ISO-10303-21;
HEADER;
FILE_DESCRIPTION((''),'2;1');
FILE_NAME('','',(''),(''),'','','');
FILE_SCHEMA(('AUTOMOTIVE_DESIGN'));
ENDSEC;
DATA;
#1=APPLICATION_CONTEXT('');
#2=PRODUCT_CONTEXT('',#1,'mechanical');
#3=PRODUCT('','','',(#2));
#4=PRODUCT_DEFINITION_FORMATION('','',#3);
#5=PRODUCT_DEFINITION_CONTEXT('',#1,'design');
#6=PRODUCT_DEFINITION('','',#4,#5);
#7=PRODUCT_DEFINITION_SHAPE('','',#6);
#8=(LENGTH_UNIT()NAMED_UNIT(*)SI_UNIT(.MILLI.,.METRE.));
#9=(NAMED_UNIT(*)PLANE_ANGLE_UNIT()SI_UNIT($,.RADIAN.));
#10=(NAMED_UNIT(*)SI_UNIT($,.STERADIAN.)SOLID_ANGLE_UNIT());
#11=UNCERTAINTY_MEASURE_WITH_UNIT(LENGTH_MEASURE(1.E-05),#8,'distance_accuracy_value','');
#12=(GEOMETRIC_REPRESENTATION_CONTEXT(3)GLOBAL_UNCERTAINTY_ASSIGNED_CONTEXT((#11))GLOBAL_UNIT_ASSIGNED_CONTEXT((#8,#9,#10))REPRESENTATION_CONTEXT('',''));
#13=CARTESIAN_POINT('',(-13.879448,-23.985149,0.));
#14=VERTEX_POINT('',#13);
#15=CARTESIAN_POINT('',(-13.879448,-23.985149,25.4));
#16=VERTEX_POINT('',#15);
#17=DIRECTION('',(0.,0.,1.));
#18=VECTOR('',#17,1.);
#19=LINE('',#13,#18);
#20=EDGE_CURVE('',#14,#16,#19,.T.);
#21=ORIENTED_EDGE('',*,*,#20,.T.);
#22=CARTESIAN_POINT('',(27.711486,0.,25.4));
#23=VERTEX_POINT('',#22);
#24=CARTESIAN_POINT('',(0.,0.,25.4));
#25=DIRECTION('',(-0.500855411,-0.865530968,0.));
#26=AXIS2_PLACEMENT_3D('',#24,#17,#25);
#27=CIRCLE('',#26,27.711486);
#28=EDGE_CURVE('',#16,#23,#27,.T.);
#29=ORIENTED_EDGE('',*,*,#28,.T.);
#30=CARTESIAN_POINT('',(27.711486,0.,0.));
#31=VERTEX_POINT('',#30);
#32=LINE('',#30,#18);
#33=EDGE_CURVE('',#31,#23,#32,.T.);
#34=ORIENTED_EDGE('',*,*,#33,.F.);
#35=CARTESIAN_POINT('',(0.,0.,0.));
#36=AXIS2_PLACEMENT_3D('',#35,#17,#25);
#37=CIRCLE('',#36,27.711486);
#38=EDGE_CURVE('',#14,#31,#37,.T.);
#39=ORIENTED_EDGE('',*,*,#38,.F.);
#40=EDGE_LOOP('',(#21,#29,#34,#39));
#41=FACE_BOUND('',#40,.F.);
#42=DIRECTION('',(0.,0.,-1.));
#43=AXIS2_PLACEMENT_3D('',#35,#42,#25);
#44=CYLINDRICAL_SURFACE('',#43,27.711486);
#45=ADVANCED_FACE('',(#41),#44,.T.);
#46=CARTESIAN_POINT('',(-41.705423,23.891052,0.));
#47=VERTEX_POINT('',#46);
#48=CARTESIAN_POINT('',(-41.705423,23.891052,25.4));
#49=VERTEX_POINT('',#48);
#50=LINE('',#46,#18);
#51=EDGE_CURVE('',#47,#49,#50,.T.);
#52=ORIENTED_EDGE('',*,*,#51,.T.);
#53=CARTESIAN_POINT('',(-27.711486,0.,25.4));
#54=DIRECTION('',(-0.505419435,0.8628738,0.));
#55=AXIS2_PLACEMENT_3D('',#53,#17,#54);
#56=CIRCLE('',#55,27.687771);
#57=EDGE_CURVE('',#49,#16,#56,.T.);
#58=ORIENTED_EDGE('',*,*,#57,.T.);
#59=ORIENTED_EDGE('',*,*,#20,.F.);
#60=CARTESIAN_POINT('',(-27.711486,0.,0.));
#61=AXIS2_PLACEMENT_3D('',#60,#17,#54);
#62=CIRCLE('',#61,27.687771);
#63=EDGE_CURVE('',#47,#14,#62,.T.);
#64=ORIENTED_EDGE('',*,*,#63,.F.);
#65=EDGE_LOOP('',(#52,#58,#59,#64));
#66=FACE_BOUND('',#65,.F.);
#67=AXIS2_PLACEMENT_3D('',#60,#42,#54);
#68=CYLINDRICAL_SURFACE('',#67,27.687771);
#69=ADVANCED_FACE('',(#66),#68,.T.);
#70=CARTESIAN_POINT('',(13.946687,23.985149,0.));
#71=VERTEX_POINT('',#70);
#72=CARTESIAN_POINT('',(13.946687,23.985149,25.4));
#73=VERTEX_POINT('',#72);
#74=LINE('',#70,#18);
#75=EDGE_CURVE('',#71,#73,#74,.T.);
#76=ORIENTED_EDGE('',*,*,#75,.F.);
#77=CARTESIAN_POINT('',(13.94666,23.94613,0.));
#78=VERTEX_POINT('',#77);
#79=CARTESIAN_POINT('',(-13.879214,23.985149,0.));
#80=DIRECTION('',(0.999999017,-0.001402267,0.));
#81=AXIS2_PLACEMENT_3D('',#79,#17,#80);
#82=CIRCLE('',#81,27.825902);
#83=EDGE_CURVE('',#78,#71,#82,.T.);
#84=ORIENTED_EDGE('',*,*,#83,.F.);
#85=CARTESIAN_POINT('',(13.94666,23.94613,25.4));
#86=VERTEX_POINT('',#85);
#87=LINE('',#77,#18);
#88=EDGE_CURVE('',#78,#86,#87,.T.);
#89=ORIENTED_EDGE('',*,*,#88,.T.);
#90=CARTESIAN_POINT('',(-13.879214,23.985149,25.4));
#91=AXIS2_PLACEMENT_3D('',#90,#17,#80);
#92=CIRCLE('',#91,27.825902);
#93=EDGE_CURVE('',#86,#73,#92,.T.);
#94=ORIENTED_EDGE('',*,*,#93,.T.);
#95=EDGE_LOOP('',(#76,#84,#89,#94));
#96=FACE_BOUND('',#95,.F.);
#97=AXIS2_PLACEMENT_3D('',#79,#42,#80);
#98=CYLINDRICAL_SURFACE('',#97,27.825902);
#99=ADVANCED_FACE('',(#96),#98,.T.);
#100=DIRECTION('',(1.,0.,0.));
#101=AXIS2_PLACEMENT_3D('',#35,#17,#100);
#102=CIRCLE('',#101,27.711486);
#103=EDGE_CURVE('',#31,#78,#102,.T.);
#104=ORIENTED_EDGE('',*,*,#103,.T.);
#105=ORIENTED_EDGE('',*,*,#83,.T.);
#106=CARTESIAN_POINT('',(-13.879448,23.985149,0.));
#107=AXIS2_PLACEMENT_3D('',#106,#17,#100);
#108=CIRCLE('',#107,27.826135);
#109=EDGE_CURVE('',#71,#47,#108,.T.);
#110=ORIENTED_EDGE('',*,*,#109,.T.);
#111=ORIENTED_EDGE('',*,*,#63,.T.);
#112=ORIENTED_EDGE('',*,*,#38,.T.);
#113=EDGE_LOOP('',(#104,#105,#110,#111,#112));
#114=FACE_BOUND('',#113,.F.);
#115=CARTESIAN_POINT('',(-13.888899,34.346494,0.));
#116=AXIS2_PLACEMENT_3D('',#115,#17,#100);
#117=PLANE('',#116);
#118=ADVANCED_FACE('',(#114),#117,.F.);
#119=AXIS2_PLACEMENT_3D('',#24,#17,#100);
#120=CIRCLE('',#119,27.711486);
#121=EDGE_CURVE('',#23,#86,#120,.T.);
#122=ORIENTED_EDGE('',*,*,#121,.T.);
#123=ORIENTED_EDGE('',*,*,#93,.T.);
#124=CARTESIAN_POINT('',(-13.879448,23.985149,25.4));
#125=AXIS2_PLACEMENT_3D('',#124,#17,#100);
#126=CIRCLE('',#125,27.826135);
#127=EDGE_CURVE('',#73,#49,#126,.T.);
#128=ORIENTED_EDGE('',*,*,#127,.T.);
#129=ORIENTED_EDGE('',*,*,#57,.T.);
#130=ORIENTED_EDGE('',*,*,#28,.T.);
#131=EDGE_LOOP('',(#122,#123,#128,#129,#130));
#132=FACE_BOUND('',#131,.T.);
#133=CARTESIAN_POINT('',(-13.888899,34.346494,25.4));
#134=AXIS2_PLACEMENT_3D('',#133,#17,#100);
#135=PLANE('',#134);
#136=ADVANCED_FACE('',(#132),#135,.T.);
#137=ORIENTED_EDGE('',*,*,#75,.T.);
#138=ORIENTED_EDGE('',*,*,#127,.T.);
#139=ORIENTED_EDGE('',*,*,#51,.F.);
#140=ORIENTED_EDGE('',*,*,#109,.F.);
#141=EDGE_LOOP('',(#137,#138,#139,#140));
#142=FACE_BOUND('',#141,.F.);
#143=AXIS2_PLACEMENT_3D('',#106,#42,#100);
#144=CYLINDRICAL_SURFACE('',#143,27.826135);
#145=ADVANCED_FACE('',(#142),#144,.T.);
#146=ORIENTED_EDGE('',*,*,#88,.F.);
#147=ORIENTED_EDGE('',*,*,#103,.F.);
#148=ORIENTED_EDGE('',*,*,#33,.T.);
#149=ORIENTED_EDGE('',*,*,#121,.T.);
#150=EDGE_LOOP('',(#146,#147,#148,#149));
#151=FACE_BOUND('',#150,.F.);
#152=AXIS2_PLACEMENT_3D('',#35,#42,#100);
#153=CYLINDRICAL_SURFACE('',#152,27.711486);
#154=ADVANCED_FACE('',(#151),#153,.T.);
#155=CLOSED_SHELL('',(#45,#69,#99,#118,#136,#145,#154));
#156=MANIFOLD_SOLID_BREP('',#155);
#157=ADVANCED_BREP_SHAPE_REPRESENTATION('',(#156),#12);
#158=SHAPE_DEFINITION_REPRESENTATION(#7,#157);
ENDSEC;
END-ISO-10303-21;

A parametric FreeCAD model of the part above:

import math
import FreeCAD as App
import Part
import Sketcher
Q = App.Units.Quantity

doc = App.newDocument("Part")
params = doc.addObject("Spreadsheet::Sheet", "Params")
for row, (alias, value) in enumerate([
    ("pad1_length", "1 in"),
], start=1):
    params.set(f"A{row}", alias)
    params.set(f"B{row}", "=" + value)
    params.setAlias(f"B{row}", alias)

body = doc.addObject("PartDesign::Body", "Body")

# Sketch on XY plane
sketch1 = body.newObject("Sketcher::SketchObject", "Sketch")
sketch1.AttachmentSupport = (doc.getObject("XY_Plane"), [""])
sketch1.MapMode = "FlatFace"
sketch1.addGeometry(Part.ArcOfCircle(Part.Circle(App.Vector(-13.879, 23.985, 0), App.Vector(0, 0, 1), 27.826), math.radians(-0.08), math.radians(0)), False)
sketch1.addGeometry(Part.ArcOfCircle(Part.Circle(App.Vector(-13.879, 23.985, 0), App.Vector(0, 0, 1), 27.826), math.radians(0), math.radians(180)), False)
sketch1.addGeometry(Part.ArcOfCircle(Part.Circle(App.Vector(-27.711, 0, 0), App.Vector(0, 0, 1), 27.688), math.radians(120), math.radians(300)), False)
sketch1.addGeometry(Part.ArcOfCircle(Part.Circle(App.Vector(0, 0, 0), App.Vector(0, 0, 1), 27.711), math.radians(-120), math.radians(0)), False)
sketch1.addGeometry(Part.ArcOfCircle(Part.Circle(App.Vector(0, 0, 0), App.Vector(0, 0, 1), 27.711), math.radians(0), math.radians(60)), False)
sketch1.addConstraint(Sketcher.Constraint("Tangent", 0, 2, 1, 1))
sketch1.addConstraint(Sketcher.Constraint("Coincident", 1, 2, 2, 1))
sketch1.addConstraint(Sketcher.Constraint("Coincident", 2, 2, 3, 1))
sketch1.addConstraint(Sketcher.Constraint("Tangent", 3, 2, 4, 1))
sketch1.addConstraint(Sketcher.Constraint("Coincident", 4, 2, 0, 1))
sketch1.addConstraint(Sketcher.Constraint("Coincident", 3, 3, -1, 1))
sketch1.addConstraint(Sketcher.Constraint("Equal", 3, 4))
sketch1.addConstraint(Sketcher.Constraint("PointOnObject", 2, 3, -1))
sketch1.addConstraint(Sketcher.Constraint("PointOnObject", 3, 2, -1))
sketch1.addConstraint(Sketcher.Constraint("Horizontal", 1, 3, 0, 2))
sketch1.addConstraint(Sketcher.Constraint("Vertical", 1, 3, 2, 2))
sketch1.addConstraint(Sketcher.Constraint("Radius", 0, Q("27.825902 mm")))
sketch1.addConstraint(Sketcher.Constraint("Radius", 2, Q("27.687771 mm")))
sketch1.addConstraint(Sketcher.Constraint("Radius", 1, Q("27.826135 mm")))
sketch1.addConstraint(Sketcher.Constraint("Radius", 3, Q("27.711486 mm")))
sketch1.addConstraint(Sketcher.Constraint("DistanceY", 2, 2, 0, 3, Q("47.970298 mm")))
sketch1.addConstraint(Sketcher.Constraint("DistanceX", 0, 2, 3, 2, Q("13.764799 mm")))
pad1 = body.newObject("PartDesign::Pad", "Pad")
pad1.Profile = sketch1
pad1.setExpression("Length", "Params.pad1_length")

doc.recompute()
